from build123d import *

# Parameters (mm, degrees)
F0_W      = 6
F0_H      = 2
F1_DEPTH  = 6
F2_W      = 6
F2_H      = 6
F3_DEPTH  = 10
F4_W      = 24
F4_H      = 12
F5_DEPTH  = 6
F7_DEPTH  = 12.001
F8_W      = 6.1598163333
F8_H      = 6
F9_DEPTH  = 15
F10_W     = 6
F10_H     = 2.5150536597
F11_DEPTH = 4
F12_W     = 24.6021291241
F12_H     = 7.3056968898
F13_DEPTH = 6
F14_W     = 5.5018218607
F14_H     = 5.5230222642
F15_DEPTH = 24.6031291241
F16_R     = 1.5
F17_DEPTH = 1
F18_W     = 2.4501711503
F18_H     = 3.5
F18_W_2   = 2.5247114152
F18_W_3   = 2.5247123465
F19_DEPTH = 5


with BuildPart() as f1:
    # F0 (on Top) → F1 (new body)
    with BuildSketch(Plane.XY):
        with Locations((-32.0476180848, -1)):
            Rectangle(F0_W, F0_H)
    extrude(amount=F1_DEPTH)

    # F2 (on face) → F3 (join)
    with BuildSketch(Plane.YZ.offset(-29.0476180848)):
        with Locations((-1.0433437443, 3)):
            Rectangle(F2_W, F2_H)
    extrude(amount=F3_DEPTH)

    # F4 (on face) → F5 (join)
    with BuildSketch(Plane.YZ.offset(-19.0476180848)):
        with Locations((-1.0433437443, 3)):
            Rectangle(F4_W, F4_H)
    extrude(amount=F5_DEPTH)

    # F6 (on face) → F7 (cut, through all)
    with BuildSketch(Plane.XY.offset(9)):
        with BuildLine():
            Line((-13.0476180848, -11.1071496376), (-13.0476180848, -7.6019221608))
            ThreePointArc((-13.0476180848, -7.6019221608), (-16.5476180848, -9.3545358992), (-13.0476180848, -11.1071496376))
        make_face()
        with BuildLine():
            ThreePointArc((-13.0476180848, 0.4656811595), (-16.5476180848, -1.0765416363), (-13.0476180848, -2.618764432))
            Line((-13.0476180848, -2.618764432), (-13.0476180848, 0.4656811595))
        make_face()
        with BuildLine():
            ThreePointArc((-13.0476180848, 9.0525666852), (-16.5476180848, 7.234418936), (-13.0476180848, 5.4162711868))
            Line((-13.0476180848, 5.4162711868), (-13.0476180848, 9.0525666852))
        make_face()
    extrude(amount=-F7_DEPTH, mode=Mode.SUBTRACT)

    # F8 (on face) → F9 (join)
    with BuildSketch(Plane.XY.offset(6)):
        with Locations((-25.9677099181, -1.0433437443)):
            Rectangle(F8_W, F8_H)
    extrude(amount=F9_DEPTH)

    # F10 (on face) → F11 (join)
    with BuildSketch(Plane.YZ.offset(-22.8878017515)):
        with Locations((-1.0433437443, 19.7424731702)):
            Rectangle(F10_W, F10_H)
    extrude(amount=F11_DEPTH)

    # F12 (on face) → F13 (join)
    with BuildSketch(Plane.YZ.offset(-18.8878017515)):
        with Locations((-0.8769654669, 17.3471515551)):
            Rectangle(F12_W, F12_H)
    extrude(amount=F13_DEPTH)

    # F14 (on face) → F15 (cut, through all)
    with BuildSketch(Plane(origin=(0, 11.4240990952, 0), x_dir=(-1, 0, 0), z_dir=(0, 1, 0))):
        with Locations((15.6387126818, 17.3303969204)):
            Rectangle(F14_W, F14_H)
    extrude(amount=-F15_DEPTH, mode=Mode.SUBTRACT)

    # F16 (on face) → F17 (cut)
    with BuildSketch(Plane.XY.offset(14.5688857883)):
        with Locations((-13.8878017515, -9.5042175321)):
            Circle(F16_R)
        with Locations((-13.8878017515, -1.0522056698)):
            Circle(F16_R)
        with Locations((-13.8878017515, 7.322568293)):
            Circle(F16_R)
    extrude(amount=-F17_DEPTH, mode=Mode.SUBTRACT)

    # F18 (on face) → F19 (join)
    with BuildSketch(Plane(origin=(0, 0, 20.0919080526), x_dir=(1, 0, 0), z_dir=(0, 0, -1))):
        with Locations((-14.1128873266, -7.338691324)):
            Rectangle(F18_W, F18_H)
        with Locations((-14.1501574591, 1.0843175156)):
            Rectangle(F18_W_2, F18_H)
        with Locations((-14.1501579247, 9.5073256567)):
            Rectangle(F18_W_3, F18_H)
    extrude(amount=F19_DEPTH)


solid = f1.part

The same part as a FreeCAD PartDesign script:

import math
import FreeCAD as App
import Part
import Sketcher

V = App.Vector
Q = App.Units.Quantity


def add_polygon(sketch, points):
    """Adds a closed chain of lines whose ends are joined by coincident constraints."""
    first, n = sketch.GeometryCount, len(points)
    for a, b in zip(points, points[1:] + points[:1]):
        sketch.addGeometry(Part.LineSegment(App.Vector(*a, 0), App.Vector(*b, 0)), False)
    for i in range(n):
        sketch.addConstraint(Sketcher.Constraint("Coincident", first + i, 2, first + (i + 1) % n, 1))

doc = App.newDocument("Part")
body = doc.addObject("PartDesign::Body", "Body")

sketch1 = body.newObject("Sketcher::SketchObject", "Sketch")
sketch1.AttachmentSupport = (doc.getObject("XY_Plane"), [""])
sketch1.MapMode = "FlatFace"
add_polygon(sketch1, [(-35, 0), (-35, -2), (-29, -2), (-29, 0)])
sketch1.addConstraint([
    Sketcher.Constraint("Vertical", 0),
    Sketcher.Constraint("Horizontal", 1),
    Sketcher.Constraint("Vertical", 2),
    Sketcher.Constraint("Horizontal", 3),
    Sketcher.Constraint("PointOnObject", 2, 2, -1),
    Sketcher.Constraint("DistanceX", 1, 1, 1, 2, Q("6 mm")),
    Sketcher.Constraint("DistanceY", 0, 2, 0, 1, Q("2 mm")),
    Sketcher.Constraint("DistanceX", 0, 2, -1, 1, Q("35.047618 mm")),
])
pad1 = body.newObject("PartDesign::Pad", "Pad")
pad1.Profile = sketch1
pad1.Length = 6

sketch2 = body.newObject("Sketcher::SketchObject", "Sketch001")
sketch2.AttachmentSupport = (doc.getObject("YZ_Plane"), [""])
sketch2.MapMode = "FlatFace"
sketch2.AttachmentOffset = App.Placement(V(0, 0, -29.047618), App.Rotation())
add_polygon(sketch2, [(-4, 6), (-4, 0), (2, 0), (2, 6)])
sketch2.addConstraint([
    Sketcher.Constraint("Vertical", 0),
    Sketcher.Constraint("Horizontal", 1),
    Sketcher.Constraint("Vertical", 2),
    Sketcher.Constraint("Horizontal", 3),
    Sketcher.Constraint("PointOnObject", 0, 2, -1),
    Sketcher.Constraint("Equal", 3, 0),
    Sketcher.Constraint("DistanceX", 1, 1, 1, 2, Q("6 mm")),
    Sketcher.Constraint("DistanceX", 0, 2, -1, 1, Q("4.043344 mm")),
])
pad2 = body.newObject("PartDesign::Pad", "Pad001")
pad2.Profile = sketch2
pad2.Length = 10

sketch3 = body.newObject("Sketcher::SketchObject", "Sketch002")
sketch3.AttachmentSupport = (doc.getObject("YZ_Plane"), [""])
sketch3.MapMode = "FlatFace"
sketch3.AttachmentOffset = App.Placement(V(0, 0, -19.047618), App.Rotation())
add_polygon(sketch3, [(-13, 9), (-13, -3), (11, -3), (11, 9)])
sketch3.addConstraint([
    Sketcher.Constraint("Vertical", 0),
    Sketcher.Constraint("Horizontal", 1),
    Sketcher.Constraint("Vertical", 2),
    Sketcher.Constraint("Horizontal", 3),
    Sketcher.Constraint("DistanceX", 1, 1, 1, 2, Q("24 mm")),
    Sketcher.Constraint("DistanceY", 0, 2, 0, 1, Q("12 mm")),
    Sketcher.Constraint("DistanceY", 0, 2, -1, 1, Q("3 mm")),
    Sketcher.Constraint("DistanceX", 0, 2, -1, 1, Q("13.043344 mm")),
])
pad3 = body.newObject("PartDesign::Pad", "Pad002")
pad3.Profile = sketch3
pad3.Length = 6

sketch4 = body.newObject("Sketcher::SketchObject", "Sketch003")
sketch4.AttachmentSupport = (doc.getObject("XY_Plane"), [""])
sketch4.MapMode = "FlatFace"
sketch4.AttachmentOffset = App.Placement(V(0, 0, 9), App.Rotation())
sketch4.addGeometry([
    Part.LineSegment(V(-13, -11.1, 0), V(-13, -7.6, 0)),
    Part.ArcOfCircle(Part.Circle(V(-14.4, -9.4, 0), V(0, 0, 1), 2.2), math.radians(53), math.radians(307)),
    Part.ArcOfCircle(Part.Circle(V(-14.5, -1.1, 0), V(0, 0, 1), 2.1), math.radians(48), math.radians(312)),
    Part.LineSegment(V(-13, -2.6, 0), V(-13, 0.5, 0)),
    Part.ArcOfCircle(Part.Circle(V(-14.3, 7.2, 0), V(0, 0, 1), 2.2), math.radians(55), math.radians(305)),
    Part.LineSegment(V(-13, 5.4, 0), V(-13, 9.1, 0)),
], False)
sketch4.addConstraint([
    Sketcher.Constraint("Coincident", 0, 1, 1, 2),
    Sketcher.Constraint("Coincident", 1, 1, 0, 2),
    Sketcher.Constraint("Coincident", 2, 1, 3, 2),
    Sketcher.Constraint("Coincident", 3, 1, 2, 2),
    Sketcher.Constraint("Coincident", 4, 1, 5, 2),
    Sketcher.Constraint("Coincident", 5, 1, 4, 2),
    Sketcher.Constraint("Vertical", 0),
    Sketcher.Constraint("Vertical", 3),
    Sketcher.Constraint("Vertical", 5),
    Sketcher.Constraint("Vertical", 1, 1, 2, 1),
    Sketcher.Constraint("Vertical", 3, 1, 4, 1),
    Sketcher.Constraint("Radius", 2, Q("2.089779 mm")),
    Sketcher.Constraint("Radius", 1, Q("2.188808 mm")),
    Sketcher.Constraint("Radius", 4, Q("2.222237 mm")),
    Sketcher.Constraint("DistanceY", 0, 1, 0, 2, Q("3.505227 mm")),
    Sketcher.Constraint("DistanceY", 3, 1, 3, 2, Q("3.084446 mm")),
    Sketcher.Constraint("DistanceY", 5, 1, 5, 2, Q("3.636295 mm")),
    Sketcher.Constraint("DistanceX", 1, 3, -1, 1, Q("14.35881 mm")),
    Sketcher.Constraint("DistanceY", 2, 3, -1, 1, Q("1.076542 mm")),
    Sketcher.Constraint("DistanceY", -1, 1, 4, 3, Q("7.234419 mm")),
    Sketcher.Constraint("DistanceY", 0, 1, -1, 1, Q("11.10715 mm")),
])
pocket1 = body.newObject("PartDesign::Pocket", "Pocket")
pocket1.Profile = sketch4
pocket1.Type = "ThroughAll"

sketch5 = body.newObject("Sketcher::SketchObject", "Sketch004")
sketch5.AttachmentSupport = (doc.getObject("XY_Plane"), [""])
sketch5.MapMode = "FlatFace"
sketch5.AttachmentOffset = App.Placement(V(0, 0, 6), App.Rotation())
add_polygon(sketch5, [(-29, 2), (-29, -4), (-23, -4), (-23, 2)])
sketch5.addConstraint([
    Sketcher.Constraint("Vertical", 0),
    Sketcher.Constraint("Horizontal", 1),
    Sketcher.Constraint("Vertical", 2),
    Sketcher.Constraint("Horizontal", 3),
    Sketcher.Constraint("DistanceY", 0, 2, 0, 1, Q("6 mm")),
    Sketcher.Constraint("DistanceX", 1, 2, -1, 1, Q("22.887802 mm")),
    Sketcher.Constraint("DistanceX", 1, 1, 1, 2, Q("6.159816 mm")),
    Sketcher.Constraint("DistanceY", 0, 2, -1, 1, Q("4.043344 mm")),
])
pad4 = body.newObject("PartDesign::Pad", "Pad003")
pad4.Profile = sketch5
pad4.Length = 15

sketch6 = body.newObject("Sketcher::SketchObject", "Sketch005")
sketch6.AttachmentSupport = (doc.getObject("YZ_Plane"), [""])
sketch6.MapMode = "FlatFace"
sketch6.AttachmentOffset = App.Placement(V(0, 0, -22.887802), App.Rotation())
add_polygon(sketch6, [(-4, 21), (-4, 18.5), (2, 18.5), (2, 21)])
sketch6.addConstraint([
    Sketcher.Constraint("Vertical", 0),
    Sketcher.Constraint("Horizontal", 1),
    Sketcher.Constraint("Vertical", 2),
    Sketcher.Constraint("Horizontal", 3),
    Sketcher.Constraint("DistanceX", 1, 1, 1, 2, Q("6 mm")),
    Sketcher.Constraint("DistanceY", -1, 1, 2, 2, Q("21 mm")),
    Sketcher.Constraint("DistanceY", 0, 2, 0, 1, Q("2.515054 mm")),
    Sketcher.Constraint("DistanceX", 0, 2, -1, 1, Q("4.043344 mm")),
])
pad5 = body.newObject("PartDesign::Pad", "Pad004")
pad5.Profile = sketch6
pad5.Length = 4

sketch7 = body.newObject("Sketcher::SketchObject", "Sketch006")
sketch7.AttachmentSupport = (doc.getObject("YZ_Plane"), [""])
sketch7.MapMode = "FlatFace"
sketch7.AttachmentOffset = App.Placement(V(0, 0, -18.887802), App.Rotation())
add_polygon(sketch7, [(-13, 21), (-13, 14), (11, 14), (11, 21)])
sketch7.addConstraint([
    Sketcher.Constraint("Vertical", 0),
    Sketcher.Constraint("Horizontal", 1),
    Sketcher.Constraint("Vertical", 2),
    Sketcher.Constraint("Horizontal", 3),
    Sketcher.Constraint("DistanceY", -1, 1, 2, 2, Q("21 mm")),
    Sketcher.Constraint("DistanceX", 1, 1, 1, 2, Q("24.602129 mm")),
    Sketcher.Constraint("DistanceX", -1, 1, 1, 2, Q("11.424099 mm")),
    Sketcher.Constraint("DistanceY", 0, 2, 0, 1, Q("7.305697 mm")),
])
pad6 = body.newObject("PartDesign::Pad", "Pad005")
pad6.Profile = sketch7
pad6.Length = 6

sketch8 = body.newObject("Sketcher::SketchObject", "Sketch007")
sketch8.AttachmentSupport = (doc.getObject("XZ_Plane"), [""])
sketch8.MapMode = "FlatFace"
sketch8.AttachmentOffset = App.Placement(V(0, 0, -11.424099), App.Rotation())
add_polygon(sketch8, [(-13, 20), (-13, 15), (-18, 15), (-18, 20)])
sketch8.addConstraint([
    Sketcher.Constraint("Vertical", 0),
    Sketcher.Constraint("Horizontal", 1),
    Sketcher.Constraint("Vertical", 2),
    Sketcher.Constraint("Horizontal", 3),
    Sketcher.Constraint("DistanceX", 1, 2, 1, 1, Q("5.501822 mm")),
    Sketcher.Constraint("DistanceX", 0, 2, -1, 1, Q("12.887802 mm")),
    Sketcher.Constraint("DistanceY", 0, 2, 0, 1, Q("5.523022 mm")),
    Sketcher.Constraint("DistanceY", -1, 1, 2, 2, Q("20.091908 mm")),
])
pocket2 = body.newObject("PartDesign::Pocket", "Pocket001")
pocket2.Profile = sketch8
pocket2.Type = "ThroughAll"
pocket2.Reversed = True

sketch9 = body.newObject("Sketcher::SketchObject", "Sketch008")
sketch9.AttachmentSupport = (doc.getObject("XY_Plane"), [""])
sketch9.MapMode = "FlatFace"
sketch9.AttachmentOffset = App.Placement(V(0, 0, 14.568886), App.Rotation())
sketch9.addGeometry([
    Part.Circle(V(-13.9, -9.5, 0), V(0, 0, 1), 1.5),
    Part.Circle(V(-13.9, -1.1, 0), V(0, 0, 1), 1.5),
    Part.Circle(V(-13.9, 7.3, 0), V(0, 0, 1), 1.5),
], False)
sketch9.addConstraint([
    Sketcher.Constraint("Equal", 0, 1),
    Sketcher.Constraint("Equal", 1, 2),
    Sketcher.Constraint("Vertical", 0, 3, 1, 3),
    Sketcher.Constraint("Vertical", 1, 3, 2, 3),
    Sketcher.Constraint("Diameter", 0, Q("3 mm")),
    Sketcher.Constraint("DistanceX", 0, 3, -1, 1, Q("13.887802 mm")),
    Sketcher.Constraint("DistanceY", -1, 1, 2, 3, Q("7.322568 mm")),
    Sketcher.Constraint("DistanceY", 0, 3, 1, 3, Q("8.452012 mm")),
    Sketcher.Constraint("DistanceY", 0, 3, -1, 1, Q("9.504218 mm")),
])
pocket3 = body.newObject("PartDesign::Pocket", "Pocket002")
pocket3.Profile = sketch9
pocket3.Length = 1

sketch10 = body.newObject("Sketcher::SketchObject", "Sketch009")
sketch10.AttachmentSupport = (doc.getObject("XY_Plane"), [""])
sketch10.MapMode = "FlatFace"
sketch10.AttachmentOffset = App.Placement(V(0, 0, 20.091908), App.Rotation())
add_polygon(sketch10, [(-15.3, 5.6), (-15.3, 9.1), (-12.9, 9.1), (-12.9, 5.6)])
add_polygon(sketch10, [(-15.4, -2.8), (-15.4, 0.7), (-12.9, 0.7), (-12.9, -2.8)])
add_polygon(sketch10, [(-15.4, -11.3), (-15.4, -7.8), (-12.9, -7.8), (-12.9, -11.3)])
sketch10.addConstraint([
    Sketcher.Constraint("Vertical", 0),
    Sketcher.Constraint("Horizontal", 1),
    Sketcher.Constraint("Vertical", 2),
    Sketcher.Constraint("Horizontal", 3),
    Sketcher.Constraint("Vertical", 4),
    Sketcher.Constraint("Horizontal", 5),
    Sketcher.Constraint("Vertical", 6),
    Sketcher.Constraint("Horizontal", 7),
    Sketcher.Constraint("Vertical", 8),
    Sketcher.Constraint("Horizontal", 9),
    Sketcher.Constraint("Vertical", 10),
    Sketcher.Constraint("Horizontal", 11),
    Sketcher.Constraint("Vertical", 2, 2, 5, 2),
    Sketcher.Constraint("Vertical", 7, 2, 8, 2),
    Sketcher.Constraint("Vertical", 6, 2, 9, 2),
    Sketcher.Constraint("Equal", 2, 4),
    Sketcher.Constraint("Equal", 6, 8),
    Sketcher.Constraint("DistanceY", 0, 1, 0, 2, Q("3.5 mm")),
    Sketcher.Constraint("DistanceX", 1, 1, 1, 2, Q("2.450171 mm")),
    Sketcher.Constraint("DistanceX", 5, 1, 5, 2, Q("2.524711 mm")),
    Sketcher.Constraint("DistanceX", 1, 2, -1, 1, Q("12.887802 mm")),
    Sketcher.Constraint("DistanceY", -1, 1, 0, 2, Q("9.088691 mm")),
    Sketcher.Constraint("DistanceY", 4, 2, 3, 2, Q("4.923009 mm")),
    Sketcher.Constraint("DistanceY", 8, 2, 7, 2, Q("4.923008 mm")),
])
pad7 = body.newObject("PartDesign::Pad", "Pad006")
pad7.Profile = sketch10
pad7.Length = 5
pad7.Reversed = True

doc.recompute()
